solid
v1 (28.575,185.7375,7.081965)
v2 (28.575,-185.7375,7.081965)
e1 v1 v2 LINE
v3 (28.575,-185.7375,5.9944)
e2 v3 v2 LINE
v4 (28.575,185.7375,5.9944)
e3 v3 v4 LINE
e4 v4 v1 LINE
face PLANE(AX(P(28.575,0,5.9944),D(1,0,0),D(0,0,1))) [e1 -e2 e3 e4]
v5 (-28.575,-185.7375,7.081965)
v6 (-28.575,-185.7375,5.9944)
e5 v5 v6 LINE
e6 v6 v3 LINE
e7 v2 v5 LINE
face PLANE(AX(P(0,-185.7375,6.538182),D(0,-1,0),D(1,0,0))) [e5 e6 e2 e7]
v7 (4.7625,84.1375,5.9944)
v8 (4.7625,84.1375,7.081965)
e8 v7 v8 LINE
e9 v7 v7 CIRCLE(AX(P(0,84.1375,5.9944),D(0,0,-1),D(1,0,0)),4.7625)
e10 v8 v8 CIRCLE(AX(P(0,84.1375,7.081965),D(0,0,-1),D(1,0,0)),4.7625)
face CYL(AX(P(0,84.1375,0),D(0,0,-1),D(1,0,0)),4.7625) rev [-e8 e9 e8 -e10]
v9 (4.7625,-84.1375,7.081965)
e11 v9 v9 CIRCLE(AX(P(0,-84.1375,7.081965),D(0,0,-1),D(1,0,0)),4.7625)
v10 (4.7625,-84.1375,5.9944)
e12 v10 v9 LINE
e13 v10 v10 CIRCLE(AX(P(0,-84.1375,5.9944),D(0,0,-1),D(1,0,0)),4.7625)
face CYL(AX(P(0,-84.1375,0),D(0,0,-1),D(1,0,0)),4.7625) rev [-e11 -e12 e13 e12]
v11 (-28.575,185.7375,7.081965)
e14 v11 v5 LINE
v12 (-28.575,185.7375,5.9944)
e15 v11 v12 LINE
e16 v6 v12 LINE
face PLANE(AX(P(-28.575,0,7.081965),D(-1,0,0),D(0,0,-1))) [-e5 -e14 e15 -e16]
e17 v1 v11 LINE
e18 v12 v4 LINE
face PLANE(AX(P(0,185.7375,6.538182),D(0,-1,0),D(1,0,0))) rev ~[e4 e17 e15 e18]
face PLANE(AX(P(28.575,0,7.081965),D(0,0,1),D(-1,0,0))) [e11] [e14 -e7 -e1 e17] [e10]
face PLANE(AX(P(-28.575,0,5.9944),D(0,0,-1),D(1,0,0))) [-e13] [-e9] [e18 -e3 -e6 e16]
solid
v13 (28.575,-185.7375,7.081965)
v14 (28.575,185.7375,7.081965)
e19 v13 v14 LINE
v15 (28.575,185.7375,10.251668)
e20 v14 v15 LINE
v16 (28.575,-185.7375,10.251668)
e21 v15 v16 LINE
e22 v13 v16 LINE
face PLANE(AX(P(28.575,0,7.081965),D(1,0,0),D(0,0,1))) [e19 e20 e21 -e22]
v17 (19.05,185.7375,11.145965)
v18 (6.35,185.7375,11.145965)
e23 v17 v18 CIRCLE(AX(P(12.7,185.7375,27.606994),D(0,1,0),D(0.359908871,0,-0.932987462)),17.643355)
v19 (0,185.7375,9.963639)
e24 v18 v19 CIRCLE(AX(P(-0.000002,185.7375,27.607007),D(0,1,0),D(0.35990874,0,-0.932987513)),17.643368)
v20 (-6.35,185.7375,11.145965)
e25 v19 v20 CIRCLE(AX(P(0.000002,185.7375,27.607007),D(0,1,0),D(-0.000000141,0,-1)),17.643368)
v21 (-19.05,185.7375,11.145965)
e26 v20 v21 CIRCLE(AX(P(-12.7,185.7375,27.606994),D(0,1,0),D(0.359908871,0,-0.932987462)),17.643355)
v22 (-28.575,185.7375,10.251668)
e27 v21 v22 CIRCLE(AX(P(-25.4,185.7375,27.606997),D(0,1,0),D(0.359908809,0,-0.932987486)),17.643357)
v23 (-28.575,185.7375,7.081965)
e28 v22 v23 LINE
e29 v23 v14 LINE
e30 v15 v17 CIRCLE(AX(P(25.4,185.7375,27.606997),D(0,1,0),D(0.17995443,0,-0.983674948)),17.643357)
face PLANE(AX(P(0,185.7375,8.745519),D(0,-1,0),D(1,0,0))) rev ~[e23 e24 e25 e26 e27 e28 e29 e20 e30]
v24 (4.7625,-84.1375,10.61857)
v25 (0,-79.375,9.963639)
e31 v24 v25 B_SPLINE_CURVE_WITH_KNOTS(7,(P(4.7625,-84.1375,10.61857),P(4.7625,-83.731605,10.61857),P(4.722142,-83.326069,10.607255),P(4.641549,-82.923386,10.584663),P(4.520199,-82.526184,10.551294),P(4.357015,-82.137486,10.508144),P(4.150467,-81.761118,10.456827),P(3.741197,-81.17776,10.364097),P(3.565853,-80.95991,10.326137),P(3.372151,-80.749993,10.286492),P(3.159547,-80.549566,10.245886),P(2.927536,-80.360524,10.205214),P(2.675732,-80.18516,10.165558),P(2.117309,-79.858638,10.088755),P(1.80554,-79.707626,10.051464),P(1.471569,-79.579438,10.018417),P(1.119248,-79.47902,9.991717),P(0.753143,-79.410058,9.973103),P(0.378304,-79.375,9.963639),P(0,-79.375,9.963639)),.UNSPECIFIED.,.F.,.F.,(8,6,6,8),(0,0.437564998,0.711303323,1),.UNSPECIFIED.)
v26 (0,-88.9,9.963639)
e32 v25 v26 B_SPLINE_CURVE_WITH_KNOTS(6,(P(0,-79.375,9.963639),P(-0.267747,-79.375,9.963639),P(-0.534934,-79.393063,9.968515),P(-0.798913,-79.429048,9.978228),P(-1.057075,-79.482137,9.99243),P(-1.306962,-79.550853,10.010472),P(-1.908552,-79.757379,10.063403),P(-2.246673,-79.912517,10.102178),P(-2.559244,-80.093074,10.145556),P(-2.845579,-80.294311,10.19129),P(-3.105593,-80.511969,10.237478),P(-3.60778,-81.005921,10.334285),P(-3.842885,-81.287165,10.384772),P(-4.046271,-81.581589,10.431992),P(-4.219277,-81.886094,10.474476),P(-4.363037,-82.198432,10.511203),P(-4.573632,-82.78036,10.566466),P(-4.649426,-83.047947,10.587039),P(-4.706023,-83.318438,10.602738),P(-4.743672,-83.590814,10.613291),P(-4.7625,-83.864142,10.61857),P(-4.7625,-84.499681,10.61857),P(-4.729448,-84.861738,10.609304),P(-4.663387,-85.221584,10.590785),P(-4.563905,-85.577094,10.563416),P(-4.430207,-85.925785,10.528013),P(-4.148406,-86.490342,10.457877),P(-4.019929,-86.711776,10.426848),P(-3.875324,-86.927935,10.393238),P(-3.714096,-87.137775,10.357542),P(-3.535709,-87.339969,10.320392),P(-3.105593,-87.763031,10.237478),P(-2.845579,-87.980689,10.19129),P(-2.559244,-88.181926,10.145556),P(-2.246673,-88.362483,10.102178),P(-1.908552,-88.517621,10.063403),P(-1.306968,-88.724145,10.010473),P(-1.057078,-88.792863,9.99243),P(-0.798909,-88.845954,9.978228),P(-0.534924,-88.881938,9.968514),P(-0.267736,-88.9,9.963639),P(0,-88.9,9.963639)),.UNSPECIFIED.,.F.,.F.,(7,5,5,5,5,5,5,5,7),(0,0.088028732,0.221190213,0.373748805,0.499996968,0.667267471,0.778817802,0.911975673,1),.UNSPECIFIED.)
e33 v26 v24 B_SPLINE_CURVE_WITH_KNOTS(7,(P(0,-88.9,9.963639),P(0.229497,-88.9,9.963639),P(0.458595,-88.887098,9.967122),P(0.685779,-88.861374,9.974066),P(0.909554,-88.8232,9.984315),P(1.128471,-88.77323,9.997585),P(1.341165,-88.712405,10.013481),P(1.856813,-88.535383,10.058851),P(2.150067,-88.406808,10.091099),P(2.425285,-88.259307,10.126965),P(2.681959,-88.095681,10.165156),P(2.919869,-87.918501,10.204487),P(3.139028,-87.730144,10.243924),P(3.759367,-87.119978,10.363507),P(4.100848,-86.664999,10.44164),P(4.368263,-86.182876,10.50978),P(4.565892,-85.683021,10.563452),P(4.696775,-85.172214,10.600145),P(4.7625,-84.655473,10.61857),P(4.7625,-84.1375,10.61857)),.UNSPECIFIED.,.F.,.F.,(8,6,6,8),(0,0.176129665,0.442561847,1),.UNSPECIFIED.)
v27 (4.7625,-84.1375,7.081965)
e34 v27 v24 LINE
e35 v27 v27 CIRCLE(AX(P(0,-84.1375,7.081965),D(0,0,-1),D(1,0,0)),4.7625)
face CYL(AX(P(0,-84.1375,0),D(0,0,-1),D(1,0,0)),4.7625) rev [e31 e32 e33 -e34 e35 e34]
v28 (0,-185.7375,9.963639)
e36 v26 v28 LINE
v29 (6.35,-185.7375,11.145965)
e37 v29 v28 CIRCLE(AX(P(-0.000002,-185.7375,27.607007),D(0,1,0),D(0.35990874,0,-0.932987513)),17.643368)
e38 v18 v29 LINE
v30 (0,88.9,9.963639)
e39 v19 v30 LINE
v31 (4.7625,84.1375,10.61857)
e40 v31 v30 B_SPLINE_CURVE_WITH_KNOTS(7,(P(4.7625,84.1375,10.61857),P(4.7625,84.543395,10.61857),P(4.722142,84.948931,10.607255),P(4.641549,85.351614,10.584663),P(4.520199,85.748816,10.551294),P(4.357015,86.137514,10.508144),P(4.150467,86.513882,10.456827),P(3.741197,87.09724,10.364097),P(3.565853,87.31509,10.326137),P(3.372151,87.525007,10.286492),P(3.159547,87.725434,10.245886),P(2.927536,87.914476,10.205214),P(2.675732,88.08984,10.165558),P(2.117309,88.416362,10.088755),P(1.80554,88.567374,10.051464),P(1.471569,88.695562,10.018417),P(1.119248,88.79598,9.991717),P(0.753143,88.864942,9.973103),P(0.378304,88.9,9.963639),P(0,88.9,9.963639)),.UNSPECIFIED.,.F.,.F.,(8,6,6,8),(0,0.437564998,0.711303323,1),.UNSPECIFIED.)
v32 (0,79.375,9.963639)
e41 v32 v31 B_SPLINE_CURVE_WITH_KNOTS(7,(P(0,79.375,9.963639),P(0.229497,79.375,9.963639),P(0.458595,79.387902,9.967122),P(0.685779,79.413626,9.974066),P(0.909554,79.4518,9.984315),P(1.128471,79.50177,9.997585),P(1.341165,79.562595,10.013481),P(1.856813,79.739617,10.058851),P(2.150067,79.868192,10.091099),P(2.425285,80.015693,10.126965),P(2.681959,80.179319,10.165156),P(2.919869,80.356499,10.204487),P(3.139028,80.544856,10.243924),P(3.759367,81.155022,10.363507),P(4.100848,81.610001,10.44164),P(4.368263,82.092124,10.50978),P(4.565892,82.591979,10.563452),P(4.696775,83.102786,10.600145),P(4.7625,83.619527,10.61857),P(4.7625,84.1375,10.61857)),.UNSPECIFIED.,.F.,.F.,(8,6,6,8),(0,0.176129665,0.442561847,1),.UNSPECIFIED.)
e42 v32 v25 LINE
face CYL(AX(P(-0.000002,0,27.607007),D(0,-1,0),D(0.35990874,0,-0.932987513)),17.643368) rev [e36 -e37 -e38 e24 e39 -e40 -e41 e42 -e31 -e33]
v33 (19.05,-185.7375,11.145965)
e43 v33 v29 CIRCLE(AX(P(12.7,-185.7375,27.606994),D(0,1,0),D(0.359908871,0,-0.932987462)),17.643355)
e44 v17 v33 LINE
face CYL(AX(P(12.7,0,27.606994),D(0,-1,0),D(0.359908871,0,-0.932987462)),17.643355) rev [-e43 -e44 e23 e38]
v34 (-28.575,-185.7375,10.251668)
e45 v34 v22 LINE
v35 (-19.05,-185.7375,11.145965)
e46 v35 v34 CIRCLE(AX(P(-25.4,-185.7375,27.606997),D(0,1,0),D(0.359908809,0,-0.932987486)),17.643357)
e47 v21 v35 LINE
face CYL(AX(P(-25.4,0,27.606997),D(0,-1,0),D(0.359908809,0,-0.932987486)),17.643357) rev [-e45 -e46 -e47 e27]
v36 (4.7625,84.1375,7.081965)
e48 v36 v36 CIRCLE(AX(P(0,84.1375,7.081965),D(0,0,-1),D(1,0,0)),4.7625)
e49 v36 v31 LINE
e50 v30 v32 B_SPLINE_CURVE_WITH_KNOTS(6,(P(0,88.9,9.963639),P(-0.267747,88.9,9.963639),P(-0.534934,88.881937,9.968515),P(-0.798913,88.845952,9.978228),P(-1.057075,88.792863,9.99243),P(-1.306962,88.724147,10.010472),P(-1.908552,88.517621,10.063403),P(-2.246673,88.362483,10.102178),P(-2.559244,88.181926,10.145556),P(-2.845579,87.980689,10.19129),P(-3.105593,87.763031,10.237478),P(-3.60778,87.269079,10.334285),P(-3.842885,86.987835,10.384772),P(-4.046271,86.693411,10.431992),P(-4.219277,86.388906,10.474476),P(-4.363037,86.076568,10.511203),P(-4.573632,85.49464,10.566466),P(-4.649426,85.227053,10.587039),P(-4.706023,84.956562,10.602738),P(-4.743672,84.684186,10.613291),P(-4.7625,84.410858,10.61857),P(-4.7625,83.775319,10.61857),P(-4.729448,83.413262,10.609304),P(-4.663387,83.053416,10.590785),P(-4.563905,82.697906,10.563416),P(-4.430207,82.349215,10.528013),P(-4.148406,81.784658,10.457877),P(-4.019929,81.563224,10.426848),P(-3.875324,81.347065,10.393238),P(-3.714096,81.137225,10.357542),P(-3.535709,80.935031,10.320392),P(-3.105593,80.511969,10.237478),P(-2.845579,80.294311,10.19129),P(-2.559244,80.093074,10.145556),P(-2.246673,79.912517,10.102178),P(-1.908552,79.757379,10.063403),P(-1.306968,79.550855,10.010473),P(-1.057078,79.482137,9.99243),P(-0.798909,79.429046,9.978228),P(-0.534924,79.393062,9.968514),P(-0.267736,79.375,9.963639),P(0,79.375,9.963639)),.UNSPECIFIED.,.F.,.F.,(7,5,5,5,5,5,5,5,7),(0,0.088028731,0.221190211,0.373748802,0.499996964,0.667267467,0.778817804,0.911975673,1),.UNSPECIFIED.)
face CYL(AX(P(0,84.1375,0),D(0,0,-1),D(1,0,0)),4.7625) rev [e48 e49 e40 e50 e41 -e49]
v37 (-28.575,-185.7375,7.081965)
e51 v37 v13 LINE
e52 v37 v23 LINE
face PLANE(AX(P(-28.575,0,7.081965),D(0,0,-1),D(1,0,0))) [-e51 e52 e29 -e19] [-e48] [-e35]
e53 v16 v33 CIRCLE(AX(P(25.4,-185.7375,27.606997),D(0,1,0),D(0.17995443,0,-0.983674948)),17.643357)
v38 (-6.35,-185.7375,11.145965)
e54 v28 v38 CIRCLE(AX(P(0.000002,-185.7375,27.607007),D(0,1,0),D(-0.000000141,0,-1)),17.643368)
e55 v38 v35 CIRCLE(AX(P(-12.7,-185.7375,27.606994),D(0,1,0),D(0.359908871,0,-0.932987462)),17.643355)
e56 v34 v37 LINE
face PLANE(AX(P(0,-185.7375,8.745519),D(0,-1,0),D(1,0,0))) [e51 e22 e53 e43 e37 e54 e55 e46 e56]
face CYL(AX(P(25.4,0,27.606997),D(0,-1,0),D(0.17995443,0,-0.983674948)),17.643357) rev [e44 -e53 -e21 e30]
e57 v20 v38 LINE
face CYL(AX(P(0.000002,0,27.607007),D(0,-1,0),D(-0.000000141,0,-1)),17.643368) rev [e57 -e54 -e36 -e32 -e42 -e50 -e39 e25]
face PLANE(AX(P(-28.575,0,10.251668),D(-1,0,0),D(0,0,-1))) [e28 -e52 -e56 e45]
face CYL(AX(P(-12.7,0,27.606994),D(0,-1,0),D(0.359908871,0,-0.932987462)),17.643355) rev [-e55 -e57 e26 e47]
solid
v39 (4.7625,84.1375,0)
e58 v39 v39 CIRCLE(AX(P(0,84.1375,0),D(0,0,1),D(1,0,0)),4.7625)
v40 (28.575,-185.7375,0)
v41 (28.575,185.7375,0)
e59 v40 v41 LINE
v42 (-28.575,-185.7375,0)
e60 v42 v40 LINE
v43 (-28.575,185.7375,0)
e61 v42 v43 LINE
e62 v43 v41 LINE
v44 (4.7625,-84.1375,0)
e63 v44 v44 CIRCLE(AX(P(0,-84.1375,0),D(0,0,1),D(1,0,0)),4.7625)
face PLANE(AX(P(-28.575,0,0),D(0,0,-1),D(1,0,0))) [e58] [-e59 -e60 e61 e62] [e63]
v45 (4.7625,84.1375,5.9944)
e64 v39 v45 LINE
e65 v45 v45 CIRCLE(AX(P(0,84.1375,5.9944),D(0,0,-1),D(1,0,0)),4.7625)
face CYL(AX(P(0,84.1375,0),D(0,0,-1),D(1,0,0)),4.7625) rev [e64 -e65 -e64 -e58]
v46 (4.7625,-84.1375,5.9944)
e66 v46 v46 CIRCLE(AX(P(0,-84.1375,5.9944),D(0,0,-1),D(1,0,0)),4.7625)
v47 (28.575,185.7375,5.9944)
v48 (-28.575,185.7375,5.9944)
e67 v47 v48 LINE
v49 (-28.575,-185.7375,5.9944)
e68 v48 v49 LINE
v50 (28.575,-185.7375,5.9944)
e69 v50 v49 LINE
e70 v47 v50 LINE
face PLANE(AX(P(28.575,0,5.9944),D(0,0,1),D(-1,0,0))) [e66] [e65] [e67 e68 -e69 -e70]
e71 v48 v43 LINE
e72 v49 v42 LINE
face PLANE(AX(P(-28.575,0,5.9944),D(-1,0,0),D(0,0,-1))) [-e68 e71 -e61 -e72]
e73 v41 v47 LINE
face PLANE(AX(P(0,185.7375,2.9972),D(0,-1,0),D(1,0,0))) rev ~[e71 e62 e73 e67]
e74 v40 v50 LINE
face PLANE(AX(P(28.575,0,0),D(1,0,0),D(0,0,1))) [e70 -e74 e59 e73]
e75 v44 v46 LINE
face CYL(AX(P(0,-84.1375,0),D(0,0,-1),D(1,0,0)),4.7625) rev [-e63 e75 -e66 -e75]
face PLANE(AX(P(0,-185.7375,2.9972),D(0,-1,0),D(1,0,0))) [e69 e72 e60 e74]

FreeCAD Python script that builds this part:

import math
import FreeCAD as App
import Part
import Sketcher

V = App.Vector
Q = App.Units.Quantity

doc = App.newDocument("Part")
body = doc.addObject("PartDesign::Body", "Body")

sketch1 = doc.addObject("Sketcher::SketchObject", "Sketch")
body.addObject(sketch1)
sketch1.AttachmentSupport = (doc.XZ_Plane, [""])
sketch1.MapMode = "FlatFace"
sketch1.addGeometry([
    Part.LineSegment(V(29, 0, 0), V(29, 6, 0)),
    Part.LineSegment(V(29, 6, 0), V(-29, 6, 0)),
    Part.LineSegment(V(-29, 6, 0), V(-29, 0, 0)),
    Part.LineSegment(V(-29, 0, 0), V(29, 0, 0)),
], False)
sketch1.addConstraint([
    Sketcher.Constraint("Coincident", 0, 2, 1, 1),
    Sketcher.Constraint("Coincident", 1, 2, 2, 1),
    Sketcher.Constraint("Coincident", 2, 2, 3, 1),
    Sketcher.Constraint("Coincident", 3, 2, 0, 1),
    Sketcher.Constraint("Vertical", 0),
    Sketcher.Constraint("Horizontal", 1),
    Sketcher.Constraint("Vertical", 2),
    Sketcher.Constraint("Horizontal", 3),
    Sketcher.Constraint("Symmetric", 2, 2, 3, 2, -1, 1),
    Sketcher.Constraint("DistanceX", 1, 2, 1, 1, Q("2.25 in")),
    Sketcher.Constraint("DistanceY", 0, 1, 0, 2, Q("0.236 in")),
])
pad1 = doc.addObject("PartDesign::Pad", "Pad")
body.addObject(pad1)
pad1.Profile = sketch1
pad1.Length = Q("14.625 in")
pad1.Midplane = True
body2 = doc.addObject("PartDesign::Body", "Body001")

sketch2 = doc.addObject("Sketcher::SketchObject", "Sketch001")
body2.addObject(sketch2)
sketch2.AttachmentSupport = (doc.getObject("XZ_Plane001"), [""])
sketch2.MapMode = "FlatFace"
sketch2.addGeometry([
    Part.LineSegment(V(28.6, 6, 0), V(28.6, 7.1, 0)),
    Part.LineSegment(V(28.6, 7.1, 0), V(-28.6, 7.1, 0)),
    Part.LineSegment(V(-28.6, 7.1, 0), V(-28.6, 6, 0)),
    Part.LineSegment(V(-28.6, 6, 0), V(28.6, 6, 0)),
], False)
sketch2.addConstraint([
    Sketcher.Constraint("Coincident", 0, 2, 1, 1),
    Sketcher.Constraint("Coincident", 1, 2, 2, 1),
    Sketcher.Constraint("Coincident", 2, 2, 3, 1),
    Sketcher.Constraint("Coincident", 3, 2, 0, 1),
    Sketcher.Constraint("Vertical", 0),
    Sketcher.Constraint("Horizontal", 1),
    Sketcher.Constraint("Vertical", 2),
    Sketcher.Constraint("Horizontal", 3),
    Sketcher.Constraint("DistanceX", 1, 2, 1, 1, Q("2.25 in")),
    Sketcher.Constraint("DistanceX", -1, 1, 0, 2, Q("1.125 in")),
    Sketcher.Constraint("DistanceY", -1, 1, 2, 2, Q("0.236 in")),
    Sketcher.Constraint("DistanceY", 0, 1, 0, 2, 1.087565),
])
pad2 = doc.addObject("PartDesign::Pad", "Pad001")
body2.addObject(pad2)
pad2.Profile = sketch2
pad2.Length = Q("14.625 in")
pad2.Midplane = True
body3 = doc.addObject("PartDesign::Body", "Body002")

sketch3 = doc.addObject("Sketcher::SketchObject", "Sketch002")
body3.addObject(sketch3)
sketch3.AttachmentSupport = (doc.getObject("XZ_Plane002"), [""])
sketch3.MapMode = "FlatFace"
sketch3.addGeometry([
    Part.LineSegment(V(28.6, 7.1, 0), V(28.6, 10.3, 0)),
    Part.ArcOfCircle(Part.Circle(V(25.4, 27.6, 0), V(0, 0, 1), 17.6), math.radians(-111), math.radians(-80)),
    Part.ArcOfCircle(Part.Circle(V(12.7, 27.6, 0), V(0, 0, 1), 17.6), math.radians(-111), math.radians(-69)),
    Part.ArcOfCircle(Part.Circle(V(0, 27.6, 0), V(0, 0, 1), 17.6), math.radians(-90), math.radians(-69)),
    Part.ArcOfCircle(Part.Circle(V(0, 27.6, 0), V(0, 0, 1), 17.6), math.radians(-111), math.radians(-90)),
    Part.ArcOfCircle(Part.Circle(V(-12.7, 27.6, 0), V(0, 0, 1), 17.6), math.radians(-111), math.radians(-69)),
    Part.ArcOfCircle(Part.Circle(V(-25.4, 27.6, 0), V(0, 0, 1), 17.6), math.radians(-100), math.radians(-69)),
    Part.LineSegment(V(-28.6, 10.3, 0), V(-28.6, 7.1, 0)),
    Part.LineSegment(V(-28.6, 7.1, 0), V(28.6, 7.1, 0)),
], False)
sketch3.addConstraint([
    Sketcher.Constraint("Coincident", 0, 2, 1, 2),
    Sketcher.Constraint("Coincident", 1, 1, 2, 2),
    Sketcher.Constraint("Coincident", 2, 1, 3, 2),
    Sketcher.Constraint("Tangent", 3, 1, 4, 2),
    Sketcher.Constraint("Coincident", 4, 1, 5, 2),
    Sketcher.Constraint("Coincident", 5, 1, 6, 2),
    Sketcher.Constraint("Coincident", 6, 1, 7, 1),
    Sketcher.Constraint("Coincident", 7, 2, 8, 1),
    Sketcher.Constraint("Coincident", 8, 2, 0, 1),
    Sketcher.Constraint("Vertical", 0),
    Sketcher.Constraint("Vertical", 7),
    Sketcher.Constraint("Horizontal", 8),
    Sketcher.Constraint("Equal", 3, 4),
    Sketcher.Constraint("Equal", 2, 5),
    Sketcher.Constraint("Equal", 1, 6),
    Sketcher.Constraint("Symmetric", 2, 3, 5, 3, -2),
    Sketcher.Constraint("Symmetric", 1, 3, 6, 3, -2),
    Sketcher.Constraint("PointOnObject", 3, 1, -2),
    Sketcher.Constraint("Horizontal", 1, 1, 2, 1),
    Sketcher.Constraint("Horizontal", 2, 1, 4, 1),
    Sketcher.Constraint("Horizontal", 0, 2, 6, 1),
    Sketcher.Constraint("DistanceX", -1, 1, 1, 3, Q("1 in")),
    Sketcher.Constraint("DistanceX", 5, 3, 2, 3, Q("1 in")),
    Sketcher.Constraint("DistanceX", 8, 1, 8, 2, Q("2.25 in")),
    Sketcher.Constraint("DistanceX", 2, 1, 1, 1, Q("0.5 in")),
    Sketcher.Constraint("DistanceY", 7, 2, 5, 1, Q("0.16 in")),
    Sketcher.Constraint("Radius", 3, 17.643368),
    Sketcher.Constraint("Radius", 1, 17.643357),
    Sketcher.Constraint("Radius", 2, 17.643355),
    Sketcher.Constraint("DistanceY", -1, 1, 3, 1, 9.963639),
])
pad3 = doc.addObject("PartDesign::Pad", "Pad002")
body3.addObject(pad3)
pad3.Profile = sketch3
pad3.Length = Q("14.625 in")
pad3.Midplane = True
body4 = doc.addObject("PartDesign::Body", "Body003")
body4.AllowCompound = True

sketch4 = doc.addObject("Sketcher::SketchObject", "Sketch003")
body4.addObject(sketch4)
sketch4.AttachmentSupport = (doc.getObject("XY_Plane003"), [""])
sketch4.MapMode = "FlatFace"
sketch4.addGeometry([
    Part.Circle(V(0, 84.1, 0), V(0, 0, 1), 4.8),
    Part.Circle(V(0, -84.1, 0), V(0, 0, 1), 4.8),
], False)
sketch4.addConstraint([
    Sketcher.Constraint("Equal", 0, 1),
    Sketcher.Constraint("Symmetric", 0, 3, 1, 3, -1, 1),
    Sketcher.Constraint("PointOnObject", 0, 3, -2),
    Sketcher.Constraint("Diameter", 0, Q("0.375 in")),
    Sketcher.Constraint("DistanceY", -1, 1, 0, 3, Q("3.3125 in")),
])
pad4 = doc.addObject("PartDesign::Pad", "Pad003")
body4.addObject(pad4)
pad4.Profile = sketch4
pad4.Length = Q("1 in")
doc.recompute()

body5 = doc.addObject("PartDesign::Body", "Body004")
body5.BaseFeature = body4
boolean = doc.addObject("PartDesign::Boolean", "Boolean")
body.addObject(boolean)
boolean.Type = "Cut"
boolean.addObjects([body5])
doc.recompute()

body6 = doc.addObject("PartDesign::Body", "Body005")
body6.BaseFeature = body4
boolean2 = doc.addObject("PartDesign::Boolean", "Boolean001")
body2.addObject(boolean2)
boolean2.Type = "Cut"
boolean2.addObjects([body6])
doc.recompute()

boolean3 = doc.addObject("PartDesign::Boolean", "Boolean002")
body3.addObject(boolean3)
boolean3.Type = "Cut"
boolean3.addObjects([body4])

doc.recompute()
